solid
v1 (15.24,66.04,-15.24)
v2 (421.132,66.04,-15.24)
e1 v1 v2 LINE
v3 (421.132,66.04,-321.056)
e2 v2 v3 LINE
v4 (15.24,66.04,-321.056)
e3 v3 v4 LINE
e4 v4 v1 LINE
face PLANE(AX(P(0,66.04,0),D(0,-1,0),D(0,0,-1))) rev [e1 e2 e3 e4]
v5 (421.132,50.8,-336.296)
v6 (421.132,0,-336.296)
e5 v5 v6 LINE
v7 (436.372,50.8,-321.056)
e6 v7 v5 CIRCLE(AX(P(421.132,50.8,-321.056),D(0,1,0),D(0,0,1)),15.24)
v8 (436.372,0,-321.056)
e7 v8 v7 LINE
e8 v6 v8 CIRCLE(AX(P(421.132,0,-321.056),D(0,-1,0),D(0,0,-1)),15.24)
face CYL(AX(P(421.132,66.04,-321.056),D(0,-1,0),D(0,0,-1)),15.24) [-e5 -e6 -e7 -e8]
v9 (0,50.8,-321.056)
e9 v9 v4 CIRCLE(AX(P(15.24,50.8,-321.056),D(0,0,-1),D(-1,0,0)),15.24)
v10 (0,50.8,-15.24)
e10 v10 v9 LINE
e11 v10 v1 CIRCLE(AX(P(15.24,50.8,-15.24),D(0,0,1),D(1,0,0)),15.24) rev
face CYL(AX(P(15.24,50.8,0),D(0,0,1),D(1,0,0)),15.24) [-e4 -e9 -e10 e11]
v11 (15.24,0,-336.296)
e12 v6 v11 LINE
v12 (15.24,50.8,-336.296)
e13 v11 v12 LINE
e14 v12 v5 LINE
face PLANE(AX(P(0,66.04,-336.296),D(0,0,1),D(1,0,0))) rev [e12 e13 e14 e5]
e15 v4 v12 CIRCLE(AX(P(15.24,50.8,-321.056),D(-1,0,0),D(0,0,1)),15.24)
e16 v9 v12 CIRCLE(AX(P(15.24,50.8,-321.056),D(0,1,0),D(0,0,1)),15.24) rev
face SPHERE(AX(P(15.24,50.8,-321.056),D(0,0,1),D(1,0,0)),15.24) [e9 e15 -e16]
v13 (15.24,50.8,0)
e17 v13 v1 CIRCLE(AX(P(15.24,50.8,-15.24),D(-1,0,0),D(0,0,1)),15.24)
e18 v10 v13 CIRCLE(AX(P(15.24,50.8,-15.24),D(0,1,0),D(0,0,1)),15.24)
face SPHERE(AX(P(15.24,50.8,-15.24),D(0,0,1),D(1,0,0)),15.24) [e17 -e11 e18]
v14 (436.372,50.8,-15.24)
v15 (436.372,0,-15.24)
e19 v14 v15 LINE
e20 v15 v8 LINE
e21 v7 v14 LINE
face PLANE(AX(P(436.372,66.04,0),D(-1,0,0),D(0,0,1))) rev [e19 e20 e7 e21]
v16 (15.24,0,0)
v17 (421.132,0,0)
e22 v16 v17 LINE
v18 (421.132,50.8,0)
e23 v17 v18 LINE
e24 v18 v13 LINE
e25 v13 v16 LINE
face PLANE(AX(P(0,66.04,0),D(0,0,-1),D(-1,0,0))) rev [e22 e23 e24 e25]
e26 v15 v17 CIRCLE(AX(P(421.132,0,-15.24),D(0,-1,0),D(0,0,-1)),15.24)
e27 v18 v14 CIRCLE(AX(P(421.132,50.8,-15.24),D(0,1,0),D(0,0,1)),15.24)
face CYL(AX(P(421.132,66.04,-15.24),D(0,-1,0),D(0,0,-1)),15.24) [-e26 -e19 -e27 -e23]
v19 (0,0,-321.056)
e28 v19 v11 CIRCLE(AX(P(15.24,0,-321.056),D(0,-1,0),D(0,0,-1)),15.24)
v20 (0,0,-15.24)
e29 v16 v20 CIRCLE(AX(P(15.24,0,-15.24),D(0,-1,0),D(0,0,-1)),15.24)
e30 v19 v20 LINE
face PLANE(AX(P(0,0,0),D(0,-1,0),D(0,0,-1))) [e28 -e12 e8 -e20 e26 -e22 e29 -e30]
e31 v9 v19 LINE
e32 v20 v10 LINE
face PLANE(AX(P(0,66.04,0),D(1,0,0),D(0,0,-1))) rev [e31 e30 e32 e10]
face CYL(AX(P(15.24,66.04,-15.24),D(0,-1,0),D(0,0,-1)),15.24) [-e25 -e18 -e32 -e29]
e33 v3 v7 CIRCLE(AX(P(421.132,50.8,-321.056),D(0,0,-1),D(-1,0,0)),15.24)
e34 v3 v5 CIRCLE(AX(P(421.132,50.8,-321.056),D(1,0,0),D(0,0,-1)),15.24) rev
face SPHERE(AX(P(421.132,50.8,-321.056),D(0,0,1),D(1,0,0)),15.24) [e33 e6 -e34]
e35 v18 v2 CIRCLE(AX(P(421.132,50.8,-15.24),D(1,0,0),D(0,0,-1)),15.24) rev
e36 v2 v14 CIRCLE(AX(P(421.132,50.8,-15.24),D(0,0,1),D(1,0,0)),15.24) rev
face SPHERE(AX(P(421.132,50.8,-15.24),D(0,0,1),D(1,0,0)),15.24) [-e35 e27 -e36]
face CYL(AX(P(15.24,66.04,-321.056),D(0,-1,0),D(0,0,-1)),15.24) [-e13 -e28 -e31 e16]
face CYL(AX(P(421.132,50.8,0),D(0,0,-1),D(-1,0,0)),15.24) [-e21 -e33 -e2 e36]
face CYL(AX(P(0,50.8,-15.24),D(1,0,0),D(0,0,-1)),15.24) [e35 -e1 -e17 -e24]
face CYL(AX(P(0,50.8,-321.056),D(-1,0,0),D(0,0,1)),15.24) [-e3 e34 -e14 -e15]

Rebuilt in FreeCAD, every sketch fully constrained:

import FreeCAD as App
import Part
import Sketcher
Q = App.Units.Quantity


def edges_at(feature, points):
    """Names of the edges that pass closest to the given points."""
    edges = feature.Shape.Edges
    near = lambda p: min(range(len(edges)), key=lambda i: edges[i].distToShape(Part.Vertex(*p))[0])
    return sorted({f"Edge{near(p) + 1}" for p in points})


def add_polygon(sketch, points):
    """Adds a closed chain of lines whose ends are joined by coincident constraints."""
    first, n = sketch.GeometryCount, len(points)
    for a, b in zip(points, points[1:] + points[:1]):
        sketch.addGeometry(Part.LineSegment(App.Vector(*a, 0), App.Vector(*b, 0)), False)
    for i in range(n):
        sketch.addConstraint(Sketcher.Constraint("Coincident", first + i, 2, first + (i + 1) % n, 1))

doc = App.newDocument("Part")
body = doc.addObject("PartDesign::Body", "Body")

# Sketch on XZ plane
sketch1 = body.newObject("Sketcher::SketchObject", "Sketch")
sketch1.AttachmentSupport = (doc.getObject("XZ_Plane"), [""])
sketch1.MapMode = "FlatFace"
add_polygon(sketch1, [(0, -336), (0, 0), (436, 0), (436, -336)])  # lines 0-3
sketch1.addConstraint([
    Sketcher.Constraint("Vertical", 0),
    Sketcher.Constraint("Horizontal", 1),
    Sketcher.Constraint("Vertical", 2),
    Sketcher.Constraint("Horizontal", 3),
    Sketcher.Constraint("Coincident", 0, 2, -1, 1),
    Sketcher.Constraint("DistanceX", 1, 1, 1, 2, Q("17.18 in")),
    Sketcher.Constraint("DistanceY", 0, 1, 0, 2, Q("13.24 in")),
])
pad1 = body.newObject("PartDesign::Pad", "Pad")
pad1.Profile = sketch1
pad1.Length = Q("2.6 in")
pad1.Reversed = True
doc.recompute()

fillet = body.newObject("PartDesign::Fillet", "Fillet")
fillet.Base = (pad1, edges_at(pad1, [
    (436.372, 66.04, -168.148),
    (218.186, 66.04, -336.296),
    (0, 66.04, -168.148),
    (218.186, 66.04, 0),
    (0, 33.02, -336.296),
    (436.372, 33.02, -336.296),
    (436.372, 33.02, 0),
    (0, 33.02, 0),
]))
fillet.Radius = Q("0.6 in")

doc.recompute()
